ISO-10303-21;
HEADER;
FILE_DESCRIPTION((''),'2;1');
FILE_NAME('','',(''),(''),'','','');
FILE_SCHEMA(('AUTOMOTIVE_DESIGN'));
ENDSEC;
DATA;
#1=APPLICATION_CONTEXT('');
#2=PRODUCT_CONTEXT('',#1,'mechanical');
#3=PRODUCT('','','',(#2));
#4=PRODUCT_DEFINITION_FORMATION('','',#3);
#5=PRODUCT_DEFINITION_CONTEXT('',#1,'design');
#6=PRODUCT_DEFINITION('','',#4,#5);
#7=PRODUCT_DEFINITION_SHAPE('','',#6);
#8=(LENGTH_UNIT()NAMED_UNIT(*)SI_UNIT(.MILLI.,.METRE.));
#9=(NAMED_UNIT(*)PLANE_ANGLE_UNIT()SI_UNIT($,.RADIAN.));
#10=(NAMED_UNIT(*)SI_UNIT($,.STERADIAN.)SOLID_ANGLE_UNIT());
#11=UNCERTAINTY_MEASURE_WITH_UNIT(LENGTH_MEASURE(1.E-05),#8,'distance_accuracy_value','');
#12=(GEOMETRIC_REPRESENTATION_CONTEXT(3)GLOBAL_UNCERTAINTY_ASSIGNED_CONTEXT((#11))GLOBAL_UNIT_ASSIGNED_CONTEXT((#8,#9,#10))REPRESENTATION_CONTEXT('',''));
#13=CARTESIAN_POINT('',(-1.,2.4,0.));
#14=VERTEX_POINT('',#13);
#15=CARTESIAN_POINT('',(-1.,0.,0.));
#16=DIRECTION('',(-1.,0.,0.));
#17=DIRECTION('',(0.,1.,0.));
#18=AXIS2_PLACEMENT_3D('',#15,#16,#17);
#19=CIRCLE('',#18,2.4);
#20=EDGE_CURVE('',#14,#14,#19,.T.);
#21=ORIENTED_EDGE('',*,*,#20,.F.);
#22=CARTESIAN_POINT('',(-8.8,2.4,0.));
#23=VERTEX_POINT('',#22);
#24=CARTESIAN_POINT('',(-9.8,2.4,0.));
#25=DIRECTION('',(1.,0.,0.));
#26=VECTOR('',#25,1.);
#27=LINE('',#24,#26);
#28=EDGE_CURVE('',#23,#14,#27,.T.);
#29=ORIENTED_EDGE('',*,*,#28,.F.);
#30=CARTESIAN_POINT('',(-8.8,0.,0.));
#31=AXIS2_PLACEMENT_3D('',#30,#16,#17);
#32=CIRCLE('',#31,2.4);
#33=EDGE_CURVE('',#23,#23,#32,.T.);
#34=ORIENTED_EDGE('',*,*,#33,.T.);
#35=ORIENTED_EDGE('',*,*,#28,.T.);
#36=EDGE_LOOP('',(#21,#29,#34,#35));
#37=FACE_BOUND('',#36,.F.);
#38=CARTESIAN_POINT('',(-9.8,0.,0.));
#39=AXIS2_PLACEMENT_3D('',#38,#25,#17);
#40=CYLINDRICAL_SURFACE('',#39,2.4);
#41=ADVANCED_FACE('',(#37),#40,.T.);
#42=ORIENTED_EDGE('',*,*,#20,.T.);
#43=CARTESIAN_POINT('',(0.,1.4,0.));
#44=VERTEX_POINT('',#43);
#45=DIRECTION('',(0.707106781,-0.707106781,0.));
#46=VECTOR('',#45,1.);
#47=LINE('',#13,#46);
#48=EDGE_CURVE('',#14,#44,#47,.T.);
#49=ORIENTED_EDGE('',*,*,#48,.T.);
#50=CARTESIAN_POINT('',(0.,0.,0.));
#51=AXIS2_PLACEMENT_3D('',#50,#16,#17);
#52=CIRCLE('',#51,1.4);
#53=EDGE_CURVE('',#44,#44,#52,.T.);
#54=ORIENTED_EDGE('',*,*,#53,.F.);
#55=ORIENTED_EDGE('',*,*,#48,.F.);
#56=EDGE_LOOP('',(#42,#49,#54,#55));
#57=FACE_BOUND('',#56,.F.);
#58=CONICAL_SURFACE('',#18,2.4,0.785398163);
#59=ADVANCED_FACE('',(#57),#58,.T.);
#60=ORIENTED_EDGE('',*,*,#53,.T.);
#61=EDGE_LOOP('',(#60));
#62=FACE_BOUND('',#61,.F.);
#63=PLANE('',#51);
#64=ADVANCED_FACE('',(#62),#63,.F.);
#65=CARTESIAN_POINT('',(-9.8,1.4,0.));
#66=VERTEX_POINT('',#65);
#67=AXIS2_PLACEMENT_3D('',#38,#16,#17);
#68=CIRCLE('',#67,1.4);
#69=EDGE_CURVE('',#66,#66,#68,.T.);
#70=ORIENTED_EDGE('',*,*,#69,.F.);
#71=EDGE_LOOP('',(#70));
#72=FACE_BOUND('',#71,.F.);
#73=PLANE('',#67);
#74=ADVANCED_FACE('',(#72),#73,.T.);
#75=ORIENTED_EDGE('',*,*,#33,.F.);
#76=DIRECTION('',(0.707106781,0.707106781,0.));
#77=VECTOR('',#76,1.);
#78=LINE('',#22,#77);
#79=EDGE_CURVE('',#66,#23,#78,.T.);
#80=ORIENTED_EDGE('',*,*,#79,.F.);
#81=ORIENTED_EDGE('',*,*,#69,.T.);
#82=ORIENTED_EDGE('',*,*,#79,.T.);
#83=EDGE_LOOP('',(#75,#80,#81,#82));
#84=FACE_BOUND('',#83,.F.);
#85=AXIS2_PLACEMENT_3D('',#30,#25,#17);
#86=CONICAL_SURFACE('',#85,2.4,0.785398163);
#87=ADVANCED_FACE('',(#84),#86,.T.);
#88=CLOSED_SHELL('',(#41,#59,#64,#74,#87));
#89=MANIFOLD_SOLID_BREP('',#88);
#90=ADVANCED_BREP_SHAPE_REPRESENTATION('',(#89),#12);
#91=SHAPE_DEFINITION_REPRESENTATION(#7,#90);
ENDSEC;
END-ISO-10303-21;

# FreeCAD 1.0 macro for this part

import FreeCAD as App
import Part
import Sketcher
Q = App.Units.Quantity


def edges_at(feature, points):
    """Names of the edges that pass closest to the given points."""
    edges = feature.Shape.Edges
    near = lambda p: min(range(len(edges)), key=lambda i: edges[i].distToShape(Part.Vertex(*p))[0])
    return sorted({f"Edge{near(p) + 1}" for p in points})


def add_polygon(sketch, points):
    """Adds a closed chain of lines whose ends are joined by coincident constraints."""
    first, n = sketch.GeometryCount, len(points)
    for a, b in zip(points, points[1:] + points[:1]):
        sketch.addGeometry(Part.LineSegment(App.Vector(*a, 0), App.Vector(*b, 0)), False)
    for i in range(n):
        sketch.addConstraint(Sketcher.Constraint("Coincident", first + i, 2, first + (i + 1) % n, 1))

doc = App.newDocument("Part")
params = doc.addObject("Spreadsheet::Sheet", "Params")
for row, (alias, value) in enumerate([
    ("sketch1_width", "9.8 mm"),
    ("sketch1_height", "2.4 mm"),
    ("revolution_angle", "360 deg"),
    ("chamfer_size", "1 mm"),
], start=1):
    params.set(f"A{row}", alias)
    params.set(f"B{row}", "=" + value)
    params.setAlias(f"B{row}", alias)

body = doc.addObject("PartDesign::Body", "Body")

sketch1 = body.newObject("Sketcher::SketchObject", "Sketch")
sketch1.AttachmentSupport = (doc.getObject("XY_Plane"), [""])
sketch1.MapMode = "FlatFace"
add_polygon(sketch1, [(-9.8, 0), (0, 0), (0, 2.4), (-9.8, 2.4)])
sketch1.addConstraint(Sketcher.Constraint("Horizontal", 0))
sketch1.addConstraint(Sketcher.Constraint("Vertical", 1))
sketch1.addConstraint(Sketcher.Constraint("Horizontal", 2))
sketch1.addConstraint(Sketcher.Constraint("Vertical", 3))
sketch1.addConstraint(Sketcher.Constraint("Coincident", 0, 2, -1, 1))
sketch1.addConstraint(Sketcher.Constraint("DistanceX", 0, 1, 0, 2, Q("9.8 mm")))
sketch1.addConstraint(Sketcher.Constraint("DistanceY", 1, 1, 1, 2, Q("2.4 mm")))
sketch1.setExpression("Constraints[9]", "Params.sketch1_width")
sketch1.setExpression("Constraints[10]", "Params.sketch1_height")
revolution = body.newObject("PartDesign::Revolution", "Revolution")
revolution.Profile = sketch1
revolution.ReferenceAxis = (sketch1, ["H_Axis"])
revolution.setExpression("Angle", "Params.revolution_angle")
doc.recompute()

chamfer = body.newObject("PartDesign::Chamfer", "Chamfer")
chamfer.Base = (revolution, edges_at(revolution, [(-9.8, -2.4, 0), (0, -2.4, 0)]))
chamfer.setExpression("Size", "Params.chamfer_size")

doc.recompute()
